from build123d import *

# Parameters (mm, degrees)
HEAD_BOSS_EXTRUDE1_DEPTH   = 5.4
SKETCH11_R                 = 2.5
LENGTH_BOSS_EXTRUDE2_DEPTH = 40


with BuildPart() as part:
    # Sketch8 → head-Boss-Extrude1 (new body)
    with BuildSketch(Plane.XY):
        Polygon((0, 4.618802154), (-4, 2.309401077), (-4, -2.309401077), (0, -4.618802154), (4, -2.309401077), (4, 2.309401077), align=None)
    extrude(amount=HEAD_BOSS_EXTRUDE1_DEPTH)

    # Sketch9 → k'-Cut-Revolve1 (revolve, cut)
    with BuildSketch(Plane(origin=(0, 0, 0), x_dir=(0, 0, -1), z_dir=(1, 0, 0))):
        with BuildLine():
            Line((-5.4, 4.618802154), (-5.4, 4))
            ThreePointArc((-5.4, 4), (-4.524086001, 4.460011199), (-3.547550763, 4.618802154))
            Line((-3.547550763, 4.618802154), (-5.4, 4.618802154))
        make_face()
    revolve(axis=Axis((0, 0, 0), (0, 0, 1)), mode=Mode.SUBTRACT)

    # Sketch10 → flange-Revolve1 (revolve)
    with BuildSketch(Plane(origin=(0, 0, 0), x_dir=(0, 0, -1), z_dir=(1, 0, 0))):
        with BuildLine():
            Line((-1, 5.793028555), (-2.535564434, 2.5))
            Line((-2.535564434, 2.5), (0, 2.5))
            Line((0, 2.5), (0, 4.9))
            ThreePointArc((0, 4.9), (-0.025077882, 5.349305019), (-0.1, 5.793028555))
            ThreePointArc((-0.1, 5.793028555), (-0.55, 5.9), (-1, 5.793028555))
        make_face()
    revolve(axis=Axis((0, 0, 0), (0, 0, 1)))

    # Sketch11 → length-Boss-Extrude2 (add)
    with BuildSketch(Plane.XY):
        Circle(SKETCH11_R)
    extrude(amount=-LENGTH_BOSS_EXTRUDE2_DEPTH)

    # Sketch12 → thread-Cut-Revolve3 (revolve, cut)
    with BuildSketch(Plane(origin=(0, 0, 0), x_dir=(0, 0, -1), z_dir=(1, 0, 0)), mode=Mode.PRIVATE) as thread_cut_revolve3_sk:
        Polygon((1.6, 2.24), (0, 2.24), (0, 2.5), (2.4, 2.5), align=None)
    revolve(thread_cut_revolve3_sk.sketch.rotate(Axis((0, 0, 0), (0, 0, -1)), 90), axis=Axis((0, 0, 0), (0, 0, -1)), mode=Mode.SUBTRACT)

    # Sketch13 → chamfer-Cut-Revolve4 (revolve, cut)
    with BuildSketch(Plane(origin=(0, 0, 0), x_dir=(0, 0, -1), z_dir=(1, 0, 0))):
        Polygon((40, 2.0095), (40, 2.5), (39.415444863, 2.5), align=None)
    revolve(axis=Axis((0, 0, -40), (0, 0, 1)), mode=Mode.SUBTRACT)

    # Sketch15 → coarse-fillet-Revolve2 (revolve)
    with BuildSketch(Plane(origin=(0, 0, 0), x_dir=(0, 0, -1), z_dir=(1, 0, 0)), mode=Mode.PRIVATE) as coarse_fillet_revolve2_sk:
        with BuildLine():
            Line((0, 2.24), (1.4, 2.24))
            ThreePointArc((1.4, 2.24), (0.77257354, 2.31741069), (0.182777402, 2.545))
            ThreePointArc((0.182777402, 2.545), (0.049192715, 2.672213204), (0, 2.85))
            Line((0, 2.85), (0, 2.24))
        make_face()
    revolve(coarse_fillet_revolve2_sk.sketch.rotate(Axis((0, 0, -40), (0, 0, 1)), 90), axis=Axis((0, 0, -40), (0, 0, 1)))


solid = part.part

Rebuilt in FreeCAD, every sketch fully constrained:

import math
import FreeCAD as App
import Part
import Sketcher
from FreeCAD import Vector
Q = App.Units.Quantity


def add_polygon(sketch, points):
    """Adds a closed chain of lines whose ends are joined by coincident constraints."""
    first, n = sketch.GeometryCount, len(points)
    for a, b in zip(points, points[1:] + points[:1]):
        sketch.addGeometry(Part.LineSegment(App.Vector(*a, 0), App.Vector(*b, 0)), False)
    for i in range(n):
        sketch.addConstraint(Sketcher.Constraint("Coincident", first + i, 2, first + (i + 1) % n, 1))

doc = App.newDocument("Part")
params = doc.addObject("Spreadsheet::Sheet", "Params")
for row, (alias, value) in enumerate([
    ("pad1_length", "5.4 mm"),
    ("groove_angle", "360 deg"),
    ("sketch3_radius", "1 mm"),
    ("sketch3_width", "2.4 mm"),
    ("revolution_angle", "360 deg"),
    ("sketch4_diameter", "5 mm"),
    ("pad2_length", "40 mm"),
    ("sketch5_height", "1.6 mm"),
    ("sketch5_height2", "2.4 mm"),
    ("sketch5_width", "0.26 mm"),
    ("groove2_angle", "360 deg"),
    ("groove3_angle", "360 deg"),
    ("sketch7_height", "1.4 mm"),
    ("sketch7_width", "0.61 mm"),
    ("revolution2_angle", "360 deg"),
], start=1):
    params.set(f"A{row}", alias)
    params.set(f"B{row}", "=" + value)
    params.setAlias(f"B{row}", alias)

body = doc.addObject("PartDesign::Body", "Body")

# Sketch on XY plane
sketch1 = body.newObject("Sketcher::SketchObject", "Sketch")
sketch1.AttachmentSupport = (doc.getObject("XY_Plane"), [""])
sketch1.MapMode = "FlatFace"
add_polygon(sketch1, [(0, 4.6), (-4, 2.3), (-4, -2.3), (0, -4.6), (4, -2.3), (4, 2.3)])  # lines 0-5
sketch1.addConstraint(Sketcher.Constraint("Vertical", 1))
sketch1.addConstraint(Sketcher.Constraint("Vertical", 4))
sketch1.addConstraint(Sketcher.Constraint("Symmetric", 0, 2, 3, 2, -1, 1))
sketch1.addConstraint(Sketcher.Constraint("Symmetric", 2, 2, 5, 2, -1, 1))
sketch1.addConstraint(Sketcher.Constraint("PointOnObject", 2, 2, -2))
sketch1.addConstraint(Sketcher.Constraint("Parallel", 2, 5))
sketch1.addConstraint(Sketcher.Constraint("Horizontal", 1, 2, 3, 2))
sketch1.addConstraint(Sketcher.Constraint("Angle", 0, Q("-150 deg")))
sketch1.addConstraint(Sketcher.Constraint("DistanceX", 0, 2, -1, 1, Q("4 mm")))
sketch1.addConstraint(Sketcher.Constraint("DistanceY", -1, 1, 0, 2, Q("2.309401 mm")))
pad1 = body.newObject("PartDesign::Pad", "Pad")
pad1.Profile = sketch1
pad1.setExpression("Length", "Params.pad1_length")

# Sketch on YZ plane
sketch2 = body.newObject("Sketcher::SketchObject", "Sketch001")
sketch2.AttachmentSupport = (doc.getObject("YZ_Plane"), [""])
sketch2.MapMode = "FlatFace"
sketch2.addGeometry(Part.LineSegment(Vector(4.6, 5.4, 0), Vector(4, 5.4, 0)), False)
sketch2.addGeometry(Part.ArcOfCircle(Part.Circle(Vector(1.5, 3.5, 0), Vector(0, 0, 1), 3.1), math.radians(0), math.radians(37)), False)
sketch2.addGeometry(Part.LineSegment(Vector(4.6, 3.5, 0), Vector(4.6, 5.4, 0)), False)
sketch2.addConstraint(Sketcher.Constraint("Coincident", 0, 2, 1, 2))
sketch2.addConstraint(Sketcher.Constraint("Tangent", 1, 1, 2, 1))
sketch2.addConstraint(Sketcher.Constraint("Coincident", 2, 2, 0, 1))
sketch2.addConstraint(Sketcher.Constraint("Horizontal", 0))
sketch2.addConstraint(Sketcher.Constraint("Vertical", 2))
sketch2.addConstraint(Sketcher.Constraint("DistanceX", -1, 1, 0, 2, Q("4 mm")))
sketch2.addConstraint(Sketcher.Constraint("DistanceY", -1, 1, 0, 2, Q("5.4 mm")))
sketch2.addConstraint(Sketcher.Constraint("Radius", 1, Q("3.082152 mm")))
sketch2.addConstraint(Sketcher.Constraint("DistanceY", 2, 1, 2, 2, Q("1.852449 mm")))
groove = body.newObject("PartDesign::Groove", "Groove")
groove.Profile = sketch2
groove.ReferenceAxis = (sketch2, ["V_Axis"])
groove.setExpression("Angle", "Params.groove_angle")

# Sketch on YZ plane
sketch3 = body.newObject("Sketcher::SketchObject", "Sketch002")
sketch3.AttachmentSupport = (doc.getObject("YZ_Plane"), [""])
sketch3.MapMode = "FlatFace"
sketch3.addGeometry(Part.LineSegment(Vector(5.8, 1, 0), Vector(2.5, 2.5, 0)), False)
sketch3.addGeometry(Part.LineSegment(Vector(2.5, 2.5, 0), Vector(2.5, 0, 0)), False)
sketch3.addGeometry(Part.LineSegment(Vector(2.5, 0, 0), Vector(4.9, 0, 0)), False)
sketch3.addGeometry(Part.ArcOfCircle(Part.Circle(Vector(4.9, 4, 0), Vector(0, 0, 1), 4), math.radians(-90), math.radians(-77.22)), False)
sketch3.addGeometry(Part.ArcOfCircle(Part.Circle(Vector(4.9, 0.6, 0), Vector(0, 0, 1), 1), math.radians(-27), math.radians(27)), False)
sketch3.addConstraint(Sketcher.Constraint("Coincident", 0, 2, 1, 1))
sketch3.addConstraint(Sketcher.Constraint("Coincident", 1, 2, 2, 1))
sketch3.addConstraint(Sketcher.Constraint("Tangent", 2, 2, 3, 1))
sketch3.addConstraint(Sketcher.Constraint("Coincident", 3, 2, 4, 1))
sketch3.addConstraint(Sketcher.Constraint("Coincident", 4, 2, 0, 1))
sketch3.addConstraint(Sketcher.Constraint("Vertical", 1))
sketch3.addConstraint(Sketcher.Constraint("Horizontal", 2))
sketch3.addConstraint(Sketcher.Constraint("PointOnObject", 1, 2, -1))
sketch3.addConstraint(Sketcher.Constraint("Vertical", 3, 3, 4, 3))
sketch3.addConstraint(Sketcher.Constraint("Vertical", 3, 2, 4, 2))
sketch3.addConstraint(Sketcher.Constraint("Radius", 4, Q("1 mm")))
sketch3.addConstraint(Sketcher.Constraint("Angle", 0, Q("155 deg")))
sketch3.addConstraint(Sketcher.Constraint("DistanceX", 2, 1, 2, 2, Q("2.4 mm")))
sketch3.addConstraint(Sketcher.Constraint("DistanceY", -1, 1, 4, 2, Q("1 mm")))
sketch3.addConstraint(Sketcher.Constraint("DistanceX", -1, 1, 3, 3, Q("4.9 mm")))
sketch3.addConstraint(Sketcher.Constraint("DistanceY", -1, 1, 3, 2, Q("0.1 mm")))
sketch3.setExpression("Constraints[10]", "Params.sketch3_radius")
sketch3.setExpression("Constraints[12]", "Params.sketch3_width")
revolution = body.newObject("PartDesign::Revolution", "Revolution")
revolution.Profile = sketch3
revolution.ReferenceAxis = (sketch3, ["V_Axis"])
revolution.setExpression("Angle", "Params.revolution_angle")

# Sketch on XY plane
sketch4 = body.newObject("Sketcher::SketchObject", "Sketch003")
sketch4.AttachmentSupport = (doc.getObject("XY_Plane"), [""])
sketch4.MapMode = "FlatFace"
sketch4.addGeometry(Part.Circle(Vector(0, 0, 0), Vector(0, 0, 1), 2.5), False)
sketch4.addConstraint(Sketcher.Constraint("Coincident", 0, 3, -1, 1))
sketch4.addConstraint(Sketcher.Constraint("Diameter", 0, Q("5 mm")))
sketch4.setExpression("Constraints[1]", "Params.sketch4_diameter")
pad2 = body.newObject("PartDesign::Pad", "Pad001")
pad2.Profile = sketch4
pad2.setExpression("Length", "Params.pad2_length")
pad2.Reversed = True

# Sketch on YZ plane
sketch5 = body.newObject("Sketcher::SketchObject", "Sketch004")
sketch5.AttachmentSupport = (doc.getObject("YZ_Plane"), [""])
sketch5.MapMode = "FlatFace"
add_polygon(sketch5, [(2.24, 0), (2.24, -1.6), (2.5, -2.4), (2.5, 0)])  # lines 0-3
sketch5.addConstraint(Sketcher.Constraint("Vertical", 0))
sketch5.addConstraint(Sketcher.Constraint("Vertical", 2))
sketch5.addConstraint(Sketcher.Constraint("Horizontal", 3))
sketch5.addConstraint(Sketcher.Constraint("PointOnObject", 2, 2, -1))
sketch5.addConstraint(Sketcher.Constraint("DistanceY", 0, 2, 0, 1, Q("1.6 mm")))
sketch5.addConstraint(Sketcher.Constraint("DistanceY", 2, 1, 2, 2, Q("2.4 mm")))
sketch5.addConstraint(Sketcher.Constraint("DistanceX", 3, 2, 3, 1, Q("0.26 mm")))
sketch5.addConstraint(Sketcher.Constraint("DistanceX", -1, 1, 1, 2, Q("2.5 mm")))
sketch5.setExpression("Constraints[8]", "Params.sketch5_height")
sketch5.setExpression("Constraints[9]", "Params.sketch5_height2")
sketch5.setExpression("Constraints[10]", "Params.sketch5_width")
groove2 = body.newObject("PartDesign::Groove", "Groove001")
groove2.Profile = sketch5
groove2.ReferenceAxis = (sketch5, ["V_Axis"])
groove2.setExpression("Angle", "Params.groove2_angle")

# Sketch on YZ plane
sketch6 = body.newObject("Sketcher::SketchObject", "Sketch005")
sketch6.AttachmentSupport = (doc.getObject("YZ_Plane"), [""])
sketch6.MapMode = "FlatFace"
add_polygon(sketch6, [(2.01, -40), (2.5, -40), (2.5, -39.42)])  # lines 0-2
sketch6.addConstraint(Sketcher.Constraint("Horizontal", 0))
sketch6.addConstraint(Sketcher.Constraint("Vertical", 1))
sketch6.addConstraint(Sketcher.Constraint("Angle", 2, Q("-130 deg")))
sketch6.addConstraint(Sketcher.Constraint("DistanceY", 0, 2, -1, 1, Q("40 mm")))
sketch6.addConstraint(Sketcher.Constraint("DistanceX", -1, 1, 0, 2, Q("2.5 mm")))
sketch6.addConstraint(Sketcher.Constraint("DistanceX", 0, 1, 0, 2, Q("0.4905 mm")))
groove3 = body.newObject("PartDesign::Groove", "Groove002")
groove3.Profile = sketch6
groove3.ReferenceAxis = (sketch6, ["V_Axis"])
groove3.setExpression("Angle", "Params.groove3_angle")

# Sketch on YZ plane
sketch7 = body.newObject("Sketcher::SketchObject", "Sketch006")
sketch7.AttachmentSupport = (doc.getObject("YZ_Plane"), [""])
sketch7.MapMode = "FlatFace"
sketch7.addGeometry(Part.LineSegment(Vector(2.24, 0, 0), Vector(2.24, -1.4, 0)), False)
sketch7.addGeometry(Part.ArcOfCircle(Part.Circle(Vector(4.82, -1.4, 0), Vector(0, 0, 1), 2.58), math.radians(152), math.radians(180)), False)
sketch7.addGeometry(Part.ArcOfCircle(Part.Circle(Vector(2.85, -0.35, 0), Vector(0, 0, 1), 0.35), math.radians(90), math.radians(152)), False)
sketch7.addGeometry(Part.LineSegment(Vector(2.85, 0, 0), Vector(2.24, 0, 0)), False)
sketch7.addConstraint(Sketcher.Constraint("Tangent", 0, 2, 1, 2))
sketch7.addConstraint(Sketcher.Constraint("Tangent", 1, 1, 2, 2))
sketch7.addConstraint(Sketcher.Constraint("Tangent", 2, 1, 3, 1))
sketch7.addConstraint(Sketcher.Constraint("Coincident", 3, 2, 0, 1))
sketch7.addConstraint(Sketcher.Constraint("Vertical", 0))
sketch7.addConstraint(Sketcher.Constraint("Horizontal", 3))
sketch7.addConstraint(Sketcher.Constraint("PointOnObject", 2, 1, -1))
sketch7.addConstraint(Sketcher.Constraint("DistanceY", 0, 2, 0, 1, Q("1.4 mm")))
sketch7.addConstraint(Sketcher.Constraint("DistanceX", 3, 2, 3, 1, Q("0.61 mm")))
sketch7.addConstraint(Sketcher.Constraint("DistanceX", -1, 1, 2, 3, Q("2.85 mm")))
sketch7.addConstraint(Sketcher.Constraint("DistanceX", -1, 1, 1, 1, Q("2.545 mm")))
sketch7.setExpression("Constraints[7]", "Params.sketch7_height")
sketch7.setExpression("Constraints[8]", "Params.sketch7_width")
revolution2 = body.newObject("PartDesign::Revolution", "Revolution001")
revolution2.Profile = sketch7
revolution2.ReferenceAxis = (sketch7, ["V_Axis"])
revolution2.setExpression("Angle", "Params.revolution2_angle")

doc.recompute()
